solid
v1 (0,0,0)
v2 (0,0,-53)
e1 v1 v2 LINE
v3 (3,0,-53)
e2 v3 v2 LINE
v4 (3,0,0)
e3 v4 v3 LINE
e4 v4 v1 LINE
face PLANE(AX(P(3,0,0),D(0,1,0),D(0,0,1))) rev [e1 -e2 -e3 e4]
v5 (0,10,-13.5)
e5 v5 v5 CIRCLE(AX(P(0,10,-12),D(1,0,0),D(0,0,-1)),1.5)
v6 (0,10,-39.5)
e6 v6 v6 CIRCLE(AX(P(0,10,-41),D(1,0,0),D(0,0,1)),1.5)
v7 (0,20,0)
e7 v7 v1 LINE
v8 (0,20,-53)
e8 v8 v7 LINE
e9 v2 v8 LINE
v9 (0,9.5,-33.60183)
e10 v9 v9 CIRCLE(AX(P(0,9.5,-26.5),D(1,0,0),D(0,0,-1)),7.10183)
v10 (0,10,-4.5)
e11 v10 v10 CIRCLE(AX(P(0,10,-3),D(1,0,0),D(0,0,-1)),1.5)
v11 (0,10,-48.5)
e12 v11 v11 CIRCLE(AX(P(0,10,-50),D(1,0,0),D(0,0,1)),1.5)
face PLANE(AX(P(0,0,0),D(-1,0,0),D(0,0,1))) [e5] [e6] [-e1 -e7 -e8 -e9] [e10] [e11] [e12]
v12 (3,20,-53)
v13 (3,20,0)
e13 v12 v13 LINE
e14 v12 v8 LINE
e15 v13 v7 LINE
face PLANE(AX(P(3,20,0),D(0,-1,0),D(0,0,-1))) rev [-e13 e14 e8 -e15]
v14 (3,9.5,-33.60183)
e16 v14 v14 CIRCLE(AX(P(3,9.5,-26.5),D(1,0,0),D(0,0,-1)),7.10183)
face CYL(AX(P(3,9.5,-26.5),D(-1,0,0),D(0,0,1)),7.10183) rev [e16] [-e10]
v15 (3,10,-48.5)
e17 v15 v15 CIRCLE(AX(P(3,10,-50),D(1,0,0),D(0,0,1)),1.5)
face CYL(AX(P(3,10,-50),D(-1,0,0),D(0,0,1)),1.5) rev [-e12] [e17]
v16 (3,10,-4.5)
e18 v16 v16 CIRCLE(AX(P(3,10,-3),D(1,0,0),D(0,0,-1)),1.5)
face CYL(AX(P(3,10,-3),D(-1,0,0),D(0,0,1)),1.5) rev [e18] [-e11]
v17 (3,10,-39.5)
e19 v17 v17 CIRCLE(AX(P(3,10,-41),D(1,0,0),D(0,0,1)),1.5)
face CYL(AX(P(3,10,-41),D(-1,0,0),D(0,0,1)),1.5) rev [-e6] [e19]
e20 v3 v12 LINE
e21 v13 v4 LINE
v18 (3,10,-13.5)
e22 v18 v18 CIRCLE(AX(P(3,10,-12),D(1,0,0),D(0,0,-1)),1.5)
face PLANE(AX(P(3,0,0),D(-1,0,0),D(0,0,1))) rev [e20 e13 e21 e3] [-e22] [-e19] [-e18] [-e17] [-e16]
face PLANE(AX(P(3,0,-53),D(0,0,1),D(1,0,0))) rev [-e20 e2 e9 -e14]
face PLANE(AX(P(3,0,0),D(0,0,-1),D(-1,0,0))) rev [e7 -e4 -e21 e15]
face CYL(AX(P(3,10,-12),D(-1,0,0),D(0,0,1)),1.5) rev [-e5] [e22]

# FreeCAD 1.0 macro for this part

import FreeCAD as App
import Part
import Sketcher
from FreeCAD import Vector

doc = App.newDocument("Part")
body = doc.addObject("PartDesign::Body", "Body")

# Sketch on YZ plane
sketch1 = doc.addObject("Sketcher::SketchObject", "Sketch")
body.addObject(sketch1)
sketch1.AttachmentSupport = (doc.YZ_Plane, [""])
sketch1.MapMode = "FlatFace"
sketch1.addGeometry([
    Part.LineSegment(Vector(20, 0, 0), Vector(0, 0, 0)),  # 0
    Part.LineSegment(Vector(0, 0, 0), Vector(0, -53, 0)),  # 1
    Part.LineSegment(Vector(0, -53, 0), Vector(20, -53, 0)),  # 2
    Part.LineSegment(Vector(20, -53, 0), Vector(20, 0, 0)),  # 3
    Part.Circle(Vector(10, -3, 0), Vector(0, 0, 1), 1.5),  # 4
    Part.Circle(Vector(10, -12, 0), Vector(0, 0, 1), 1.5),  # 5
    Part.Circle(Vector(9.5, -26.5, 0), Vector(0, 0, 1), 7.10183),  # 6
    Part.Circle(Vector(10, -41, 0), Vector(0, 0, 1), 1.5),  # 7
    Part.Circle(Vector(10, -50, 0), Vector(0, 0, 1), 1.5),  # 8
], False)
sketch1.addConstraint([
    Sketcher.Constraint("Coincident", 0, 2, 1, 1),
    Sketcher.Constraint("Coincident", 1, 2, 2, 1),
    Sketcher.Constraint("Coincident", 2, 2, 3, 1),
    Sketcher.Constraint("Coincident", 3, 2, 0, 1),
    Sketcher.Constraint("Horizontal", 0),
    Sketcher.Constraint("Vertical", 1),
    Sketcher.Constraint("Horizontal", 2),
    Sketcher.Constraint("Vertical", 3),
    Sketcher.Constraint("Coincident", 0, 2, -1, 1),
    Sketcher.Constraint("Equal", 4, 5),
    Sketcher.Constraint("Equal", 5, 7),
    Sketcher.Constraint("Equal", 7, 8),
    Sketcher.Constraint("Vertical", 4, 3, 5, 3),
    Sketcher.Constraint("Vertical", 5, 3, 7, 3),
    Sketcher.Constraint("Vertical", 7, 3, 8, 3),
    Sketcher.Constraint("Diameter", 4, 3.0),
    Sketcher.Constraint("DistanceX", 0, 2, 0, 1, 20.0),
    Sketcher.Constraint("DistanceY", 1, 2, 1, 1, 53.0),
    Sketcher.Constraint("DistanceX", -1, 1, 4, 3, 10.0),
    Sketcher.Constraint("DistanceY", 4, 3, -1, 1, 3.0),
    Sketcher.Constraint("DistanceY", 5, 3, -1, 1, 12.0),
    Sketcher.Constraint("DistanceY", 7, 3, -1, 1, 41.0),
    Sketcher.Constraint("DistanceY", 8, 3, -1, 1, 50.0),
    Sketcher.Constraint("DistanceX", -1, 1, 6, 3, 9.5),
    Sketcher.Constraint("DistanceY", 6, 3, -1, 1, 26.5),
    Sketcher.Constraint("Diameter", 6, 14.20366),
])
pad1 = doc.addObject("PartDesign::Pad", "Pad")
body.addObject(pad1)
pad1.Profile = sketch1
pad1.Length = 3

doc.recompute()
